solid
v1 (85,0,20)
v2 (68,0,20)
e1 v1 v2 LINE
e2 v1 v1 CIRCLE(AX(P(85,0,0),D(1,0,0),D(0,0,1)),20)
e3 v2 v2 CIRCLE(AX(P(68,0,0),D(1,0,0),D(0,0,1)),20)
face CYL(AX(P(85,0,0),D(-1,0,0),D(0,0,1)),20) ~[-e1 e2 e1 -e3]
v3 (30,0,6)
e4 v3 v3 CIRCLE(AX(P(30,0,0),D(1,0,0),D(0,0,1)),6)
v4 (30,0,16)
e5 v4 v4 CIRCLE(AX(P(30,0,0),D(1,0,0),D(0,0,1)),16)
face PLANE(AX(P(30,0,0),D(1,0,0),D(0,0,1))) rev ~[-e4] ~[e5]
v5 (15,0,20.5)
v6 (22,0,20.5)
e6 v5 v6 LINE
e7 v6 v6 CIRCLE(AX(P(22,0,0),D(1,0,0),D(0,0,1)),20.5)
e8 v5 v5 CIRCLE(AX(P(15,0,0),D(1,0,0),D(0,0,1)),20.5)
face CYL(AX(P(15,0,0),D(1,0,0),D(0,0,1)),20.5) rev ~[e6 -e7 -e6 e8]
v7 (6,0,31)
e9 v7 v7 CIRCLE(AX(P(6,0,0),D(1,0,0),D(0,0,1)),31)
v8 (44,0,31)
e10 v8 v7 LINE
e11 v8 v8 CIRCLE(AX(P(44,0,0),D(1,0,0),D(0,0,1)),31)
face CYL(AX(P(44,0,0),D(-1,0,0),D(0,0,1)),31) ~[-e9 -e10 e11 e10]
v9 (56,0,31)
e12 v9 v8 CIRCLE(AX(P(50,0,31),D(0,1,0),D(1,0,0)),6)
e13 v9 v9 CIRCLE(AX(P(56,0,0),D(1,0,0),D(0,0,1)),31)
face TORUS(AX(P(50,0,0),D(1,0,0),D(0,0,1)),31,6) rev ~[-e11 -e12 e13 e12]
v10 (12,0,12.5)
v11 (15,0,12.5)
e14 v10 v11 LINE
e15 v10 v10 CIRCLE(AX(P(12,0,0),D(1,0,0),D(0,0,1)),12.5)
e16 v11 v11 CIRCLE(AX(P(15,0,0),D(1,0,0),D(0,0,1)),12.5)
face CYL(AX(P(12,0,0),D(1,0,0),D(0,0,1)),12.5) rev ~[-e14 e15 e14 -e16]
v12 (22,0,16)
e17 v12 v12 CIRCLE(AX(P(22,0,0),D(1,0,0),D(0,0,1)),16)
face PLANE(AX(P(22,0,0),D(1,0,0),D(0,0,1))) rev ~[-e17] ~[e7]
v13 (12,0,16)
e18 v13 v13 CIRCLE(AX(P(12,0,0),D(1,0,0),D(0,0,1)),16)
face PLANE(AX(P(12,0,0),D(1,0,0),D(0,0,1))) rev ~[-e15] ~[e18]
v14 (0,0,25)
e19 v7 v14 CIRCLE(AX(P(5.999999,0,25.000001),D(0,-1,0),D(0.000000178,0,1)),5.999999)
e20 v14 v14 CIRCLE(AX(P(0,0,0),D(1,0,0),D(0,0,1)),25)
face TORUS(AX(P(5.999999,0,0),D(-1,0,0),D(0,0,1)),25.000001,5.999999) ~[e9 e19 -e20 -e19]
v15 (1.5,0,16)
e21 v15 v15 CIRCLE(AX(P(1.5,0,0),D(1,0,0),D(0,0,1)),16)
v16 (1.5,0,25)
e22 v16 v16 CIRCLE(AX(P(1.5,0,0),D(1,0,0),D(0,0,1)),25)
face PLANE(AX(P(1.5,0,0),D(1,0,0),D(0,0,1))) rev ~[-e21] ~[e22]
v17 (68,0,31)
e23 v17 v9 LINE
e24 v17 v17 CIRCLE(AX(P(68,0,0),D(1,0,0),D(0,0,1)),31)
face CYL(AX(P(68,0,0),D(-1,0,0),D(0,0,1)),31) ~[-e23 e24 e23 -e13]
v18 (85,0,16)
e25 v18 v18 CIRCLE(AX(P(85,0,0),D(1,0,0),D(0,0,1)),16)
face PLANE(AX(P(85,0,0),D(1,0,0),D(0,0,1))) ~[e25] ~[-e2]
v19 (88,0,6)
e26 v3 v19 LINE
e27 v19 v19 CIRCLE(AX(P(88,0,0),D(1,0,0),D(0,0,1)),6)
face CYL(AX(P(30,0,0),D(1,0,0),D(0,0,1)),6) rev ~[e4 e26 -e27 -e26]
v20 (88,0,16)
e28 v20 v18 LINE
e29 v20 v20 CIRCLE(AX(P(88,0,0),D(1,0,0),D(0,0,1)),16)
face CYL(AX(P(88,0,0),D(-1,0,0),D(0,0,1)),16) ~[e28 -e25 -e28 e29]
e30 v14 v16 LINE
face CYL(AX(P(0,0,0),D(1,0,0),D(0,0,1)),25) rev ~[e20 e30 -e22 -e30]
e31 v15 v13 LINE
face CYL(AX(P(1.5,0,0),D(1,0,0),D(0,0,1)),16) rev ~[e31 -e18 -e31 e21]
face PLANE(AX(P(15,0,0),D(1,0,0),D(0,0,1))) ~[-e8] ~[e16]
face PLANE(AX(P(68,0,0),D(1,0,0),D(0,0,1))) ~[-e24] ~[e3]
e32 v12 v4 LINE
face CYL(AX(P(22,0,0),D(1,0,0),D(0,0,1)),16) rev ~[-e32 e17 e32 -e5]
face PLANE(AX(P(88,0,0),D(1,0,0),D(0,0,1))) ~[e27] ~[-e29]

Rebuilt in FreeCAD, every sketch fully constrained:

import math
import FreeCAD as App
import Part
import Sketcher

V = App.Vector
Q = App.Units.Quantity

doc = App.newDocument("Part")
body = doc.addObject("PartDesign::Body", "Body")

sketch1 = doc.addObject("Sketcher::SketchObject", "Sketch")
body.addObject(sketch1)
sketch1.AttachmentSupport = (doc.XZ_Plane, [""])
sketch1.MapMode = "FlatFace"
sketch1.addGeometry([
    Part.LineSegment(V(1.5, 25, 0), V(1.5, 16, 0)),
    Part.LineSegment(V(1.5, 16, 0), V(12, 16, 0)),
    Part.LineSegment(V(12, 16, 0), V(12, 12.5, 0)),
    Part.LineSegment(V(12, 12.5, 0), V(15, 12.5, 0)),
    Part.LineSegment(V(15, 12.5, 0), V(15, 20.5, 0)),
    Part.LineSegment(V(15, 20.5, 0), V(22, 20.5, 0)),
    Part.LineSegment(V(22, 20.5, 0), V(22, 16, 0)),
    Part.LineSegment(V(22, 16, 0), V(30, 16, 0)),
    Part.LineSegment(V(30, 16, 0), V(30, 6, 0)),
    Part.LineSegment(V(30, 6, 0), V(88, 6, 0)),
    Part.LineSegment(V(88, 6, 0), V(88, 16, 0)),
    Part.LineSegment(V(88, 16, 0), V(85, 16, 0)),
    Part.LineSegment(V(85, 16, 0), V(85, 20, 0)),
    Part.LineSegment(V(85, 20, 0), V(68, 20, 0)),
    Part.LineSegment(V(68, 20, 0), V(68, 31, 0)),
    Part.LineSegment(V(68, 31, 0), V(56, 31, 0)),
    Part.ArcOfCircle(Part.Circle(V(50, 31, 0), V(0, 0, 1), 6), math.radians(180), math.radians(360)),
    Part.LineSegment(V(44, 31, 0), V(6, 31, 0)),
    Part.ArcOfCircle(Part.Circle(V(6, 25, 0), V(0, 0, 1), 6), math.radians(90), math.radians(180)),
    Part.LineSegment(V(0, 25, 0), V(1.5, 25, 0)),
], False)
sketch1.addConstraint([
    Sketcher.Constraint("Coincident", 0, 2, 1, 1),
    Sketcher.Constraint("Coincident", 1, 2, 2, 1),
    Sketcher.Constraint("Coincident", 2, 2, 3, 1),
    Sketcher.Constraint("Coincident", 3, 2, 4, 1),
    Sketcher.Constraint("Coincident", 4, 2, 5, 1),
    Sketcher.Constraint("Coincident", 5, 2, 6, 1),
    Sketcher.Constraint("Coincident", 6, 2, 7, 1),
    Sketcher.Constraint("Coincident", 7, 2, 8, 1),
    Sketcher.Constraint("Coincident", 8, 2, 9, 1),
    Sketcher.Constraint("Coincident", 9, 2, 10, 1),
    Sketcher.Constraint("Coincident", 10, 2, 11, 1),
    Sketcher.Constraint("Coincident", 11, 2, 12, 1),
    Sketcher.Constraint("Coincident", 12, 2, 13, 1),
    Sketcher.Constraint("Coincident", 13, 2, 14, 1),
    Sketcher.Constraint("Coincident", 14, 2, 15, 1),
    Sketcher.Constraint("Coincident", 15, 2, 16, 2),
    Sketcher.Constraint("Coincident", 16, 1, 17, 1),
    Sketcher.Constraint("Tangent", 17, 2, 18, 1),
    Sketcher.Constraint("Coincident", 18, 2, 19, 1),
    Sketcher.Constraint("Coincident", 19, 2, 0, 1),
    Sketcher.Constraint("Vertical", 0),
    Sketcher.Constraint("Horizontal", 1),
    Sketcher.Constraint("Vertical", 2),
    Sketcher.Constraint("Horizontal", 3),
    Sketcher.Constraint("Vertical", 4),
    Sketcher.Constraint("Horizontal", 5),
    Sketcher.Constraint("Vertical", 6),
    Sketcher.Constraint("Horizontal", 7),
    Sketcher.Constraint("Vertical", 8),
    Sketcher.Constraint("Horizontal", 9),
    Sketcher.Constraint("Vertical", 10),
    Sketcher.Constraint("Horizontal", 11),
    Sketcher.Constraint("Vertical", 12),
    Sketcher.Constraint("Horizontal", 13),
    Sketcher.Constraint("Vertical", 14),
    Sketcher.Constraint("Horizontal", 15),
    Sketcher.Constraint("Horizontal", 17),
    Sketcher.Constraint("Horizontal", 19),
    Sketcher.Constraint("Equal", 16, 18),
    Sketcher.Constraint("PointOnObject", 18, 2, -2),
    Sketcher.Constraint("Horizontal", 1, 2, 6, 2),
    Sketcher.Constraint("Horizontal", 7, 2, 10, 2),
    Sketcher.Constraint("Horizontal", 16, 3, 14, 2),
    Sketcher.Constraint("Horizontal", 15, 2, 16, 1),
    Sketcher.Constraint("Equal", 3, 11),
    Sketcher.Constraint("Equal", 7, 4),
    Sketcher.Constraint("Radius", 16, Q("6 mm")),
    Sketcher.Constraint("DistanceX", 3, 1, 3, 2, Q("3 mm")),
    Sketcher.Constraint("DistanceX", 5, 1, 5, 2, Q("7 mm")),
    Sketcher.Constraint("DistanceX", 7, 1, 7, 2, Q("8 mm")),
    Sketcher.Constraint("DistanceX", 9, 1, 9, 2, Q("58 mm")),
    Sketcher.Constraint("DistanceX", 13, 2, 13, 1, Q("17 mm")),
    Sketcher.Constraint("DistanceX", 15, 2, 15, 1, Q("12 mm")),
    Sketcher.Constraint("DistanceX", 17, 2, 17, 1, Q("38 mm")),
    Sketcher.Constraint("DistanceY", 0, 2, 0, 1, Q("9 mm")),
    Sketcher.Constraint("DistanceY", 8, 2, 8, 1, Q("10 mm")),
    Sketcher.Constraint("DistanceY", 12, 1, 12, 2, Q("4 mm")),
    Sketcher.Constraint("DistanceY", 14, 1, 14, 2, Q("11 mm")),
    Sketcher.Constraint("DistanceX", 1, 1, 1, 2, Q("10.5 mm")),
    Sketcher.Constraint("DistanceY", 2, 2, 2, 1, Q("3.5 mm")),
    Sketcher.Constraint("DistanceY", -1, 1, 16, 3, Q("31 mm")),
])
revolution = doc.addObject("PartDesign::Revolution", "Revolution")
body.addObject(revolution)
revolution.Profile = sketch1
revolution.ReferenceAxis = (sketch1, ["H_Axis"])
revolution.Angle = 360

doc.recompute()
